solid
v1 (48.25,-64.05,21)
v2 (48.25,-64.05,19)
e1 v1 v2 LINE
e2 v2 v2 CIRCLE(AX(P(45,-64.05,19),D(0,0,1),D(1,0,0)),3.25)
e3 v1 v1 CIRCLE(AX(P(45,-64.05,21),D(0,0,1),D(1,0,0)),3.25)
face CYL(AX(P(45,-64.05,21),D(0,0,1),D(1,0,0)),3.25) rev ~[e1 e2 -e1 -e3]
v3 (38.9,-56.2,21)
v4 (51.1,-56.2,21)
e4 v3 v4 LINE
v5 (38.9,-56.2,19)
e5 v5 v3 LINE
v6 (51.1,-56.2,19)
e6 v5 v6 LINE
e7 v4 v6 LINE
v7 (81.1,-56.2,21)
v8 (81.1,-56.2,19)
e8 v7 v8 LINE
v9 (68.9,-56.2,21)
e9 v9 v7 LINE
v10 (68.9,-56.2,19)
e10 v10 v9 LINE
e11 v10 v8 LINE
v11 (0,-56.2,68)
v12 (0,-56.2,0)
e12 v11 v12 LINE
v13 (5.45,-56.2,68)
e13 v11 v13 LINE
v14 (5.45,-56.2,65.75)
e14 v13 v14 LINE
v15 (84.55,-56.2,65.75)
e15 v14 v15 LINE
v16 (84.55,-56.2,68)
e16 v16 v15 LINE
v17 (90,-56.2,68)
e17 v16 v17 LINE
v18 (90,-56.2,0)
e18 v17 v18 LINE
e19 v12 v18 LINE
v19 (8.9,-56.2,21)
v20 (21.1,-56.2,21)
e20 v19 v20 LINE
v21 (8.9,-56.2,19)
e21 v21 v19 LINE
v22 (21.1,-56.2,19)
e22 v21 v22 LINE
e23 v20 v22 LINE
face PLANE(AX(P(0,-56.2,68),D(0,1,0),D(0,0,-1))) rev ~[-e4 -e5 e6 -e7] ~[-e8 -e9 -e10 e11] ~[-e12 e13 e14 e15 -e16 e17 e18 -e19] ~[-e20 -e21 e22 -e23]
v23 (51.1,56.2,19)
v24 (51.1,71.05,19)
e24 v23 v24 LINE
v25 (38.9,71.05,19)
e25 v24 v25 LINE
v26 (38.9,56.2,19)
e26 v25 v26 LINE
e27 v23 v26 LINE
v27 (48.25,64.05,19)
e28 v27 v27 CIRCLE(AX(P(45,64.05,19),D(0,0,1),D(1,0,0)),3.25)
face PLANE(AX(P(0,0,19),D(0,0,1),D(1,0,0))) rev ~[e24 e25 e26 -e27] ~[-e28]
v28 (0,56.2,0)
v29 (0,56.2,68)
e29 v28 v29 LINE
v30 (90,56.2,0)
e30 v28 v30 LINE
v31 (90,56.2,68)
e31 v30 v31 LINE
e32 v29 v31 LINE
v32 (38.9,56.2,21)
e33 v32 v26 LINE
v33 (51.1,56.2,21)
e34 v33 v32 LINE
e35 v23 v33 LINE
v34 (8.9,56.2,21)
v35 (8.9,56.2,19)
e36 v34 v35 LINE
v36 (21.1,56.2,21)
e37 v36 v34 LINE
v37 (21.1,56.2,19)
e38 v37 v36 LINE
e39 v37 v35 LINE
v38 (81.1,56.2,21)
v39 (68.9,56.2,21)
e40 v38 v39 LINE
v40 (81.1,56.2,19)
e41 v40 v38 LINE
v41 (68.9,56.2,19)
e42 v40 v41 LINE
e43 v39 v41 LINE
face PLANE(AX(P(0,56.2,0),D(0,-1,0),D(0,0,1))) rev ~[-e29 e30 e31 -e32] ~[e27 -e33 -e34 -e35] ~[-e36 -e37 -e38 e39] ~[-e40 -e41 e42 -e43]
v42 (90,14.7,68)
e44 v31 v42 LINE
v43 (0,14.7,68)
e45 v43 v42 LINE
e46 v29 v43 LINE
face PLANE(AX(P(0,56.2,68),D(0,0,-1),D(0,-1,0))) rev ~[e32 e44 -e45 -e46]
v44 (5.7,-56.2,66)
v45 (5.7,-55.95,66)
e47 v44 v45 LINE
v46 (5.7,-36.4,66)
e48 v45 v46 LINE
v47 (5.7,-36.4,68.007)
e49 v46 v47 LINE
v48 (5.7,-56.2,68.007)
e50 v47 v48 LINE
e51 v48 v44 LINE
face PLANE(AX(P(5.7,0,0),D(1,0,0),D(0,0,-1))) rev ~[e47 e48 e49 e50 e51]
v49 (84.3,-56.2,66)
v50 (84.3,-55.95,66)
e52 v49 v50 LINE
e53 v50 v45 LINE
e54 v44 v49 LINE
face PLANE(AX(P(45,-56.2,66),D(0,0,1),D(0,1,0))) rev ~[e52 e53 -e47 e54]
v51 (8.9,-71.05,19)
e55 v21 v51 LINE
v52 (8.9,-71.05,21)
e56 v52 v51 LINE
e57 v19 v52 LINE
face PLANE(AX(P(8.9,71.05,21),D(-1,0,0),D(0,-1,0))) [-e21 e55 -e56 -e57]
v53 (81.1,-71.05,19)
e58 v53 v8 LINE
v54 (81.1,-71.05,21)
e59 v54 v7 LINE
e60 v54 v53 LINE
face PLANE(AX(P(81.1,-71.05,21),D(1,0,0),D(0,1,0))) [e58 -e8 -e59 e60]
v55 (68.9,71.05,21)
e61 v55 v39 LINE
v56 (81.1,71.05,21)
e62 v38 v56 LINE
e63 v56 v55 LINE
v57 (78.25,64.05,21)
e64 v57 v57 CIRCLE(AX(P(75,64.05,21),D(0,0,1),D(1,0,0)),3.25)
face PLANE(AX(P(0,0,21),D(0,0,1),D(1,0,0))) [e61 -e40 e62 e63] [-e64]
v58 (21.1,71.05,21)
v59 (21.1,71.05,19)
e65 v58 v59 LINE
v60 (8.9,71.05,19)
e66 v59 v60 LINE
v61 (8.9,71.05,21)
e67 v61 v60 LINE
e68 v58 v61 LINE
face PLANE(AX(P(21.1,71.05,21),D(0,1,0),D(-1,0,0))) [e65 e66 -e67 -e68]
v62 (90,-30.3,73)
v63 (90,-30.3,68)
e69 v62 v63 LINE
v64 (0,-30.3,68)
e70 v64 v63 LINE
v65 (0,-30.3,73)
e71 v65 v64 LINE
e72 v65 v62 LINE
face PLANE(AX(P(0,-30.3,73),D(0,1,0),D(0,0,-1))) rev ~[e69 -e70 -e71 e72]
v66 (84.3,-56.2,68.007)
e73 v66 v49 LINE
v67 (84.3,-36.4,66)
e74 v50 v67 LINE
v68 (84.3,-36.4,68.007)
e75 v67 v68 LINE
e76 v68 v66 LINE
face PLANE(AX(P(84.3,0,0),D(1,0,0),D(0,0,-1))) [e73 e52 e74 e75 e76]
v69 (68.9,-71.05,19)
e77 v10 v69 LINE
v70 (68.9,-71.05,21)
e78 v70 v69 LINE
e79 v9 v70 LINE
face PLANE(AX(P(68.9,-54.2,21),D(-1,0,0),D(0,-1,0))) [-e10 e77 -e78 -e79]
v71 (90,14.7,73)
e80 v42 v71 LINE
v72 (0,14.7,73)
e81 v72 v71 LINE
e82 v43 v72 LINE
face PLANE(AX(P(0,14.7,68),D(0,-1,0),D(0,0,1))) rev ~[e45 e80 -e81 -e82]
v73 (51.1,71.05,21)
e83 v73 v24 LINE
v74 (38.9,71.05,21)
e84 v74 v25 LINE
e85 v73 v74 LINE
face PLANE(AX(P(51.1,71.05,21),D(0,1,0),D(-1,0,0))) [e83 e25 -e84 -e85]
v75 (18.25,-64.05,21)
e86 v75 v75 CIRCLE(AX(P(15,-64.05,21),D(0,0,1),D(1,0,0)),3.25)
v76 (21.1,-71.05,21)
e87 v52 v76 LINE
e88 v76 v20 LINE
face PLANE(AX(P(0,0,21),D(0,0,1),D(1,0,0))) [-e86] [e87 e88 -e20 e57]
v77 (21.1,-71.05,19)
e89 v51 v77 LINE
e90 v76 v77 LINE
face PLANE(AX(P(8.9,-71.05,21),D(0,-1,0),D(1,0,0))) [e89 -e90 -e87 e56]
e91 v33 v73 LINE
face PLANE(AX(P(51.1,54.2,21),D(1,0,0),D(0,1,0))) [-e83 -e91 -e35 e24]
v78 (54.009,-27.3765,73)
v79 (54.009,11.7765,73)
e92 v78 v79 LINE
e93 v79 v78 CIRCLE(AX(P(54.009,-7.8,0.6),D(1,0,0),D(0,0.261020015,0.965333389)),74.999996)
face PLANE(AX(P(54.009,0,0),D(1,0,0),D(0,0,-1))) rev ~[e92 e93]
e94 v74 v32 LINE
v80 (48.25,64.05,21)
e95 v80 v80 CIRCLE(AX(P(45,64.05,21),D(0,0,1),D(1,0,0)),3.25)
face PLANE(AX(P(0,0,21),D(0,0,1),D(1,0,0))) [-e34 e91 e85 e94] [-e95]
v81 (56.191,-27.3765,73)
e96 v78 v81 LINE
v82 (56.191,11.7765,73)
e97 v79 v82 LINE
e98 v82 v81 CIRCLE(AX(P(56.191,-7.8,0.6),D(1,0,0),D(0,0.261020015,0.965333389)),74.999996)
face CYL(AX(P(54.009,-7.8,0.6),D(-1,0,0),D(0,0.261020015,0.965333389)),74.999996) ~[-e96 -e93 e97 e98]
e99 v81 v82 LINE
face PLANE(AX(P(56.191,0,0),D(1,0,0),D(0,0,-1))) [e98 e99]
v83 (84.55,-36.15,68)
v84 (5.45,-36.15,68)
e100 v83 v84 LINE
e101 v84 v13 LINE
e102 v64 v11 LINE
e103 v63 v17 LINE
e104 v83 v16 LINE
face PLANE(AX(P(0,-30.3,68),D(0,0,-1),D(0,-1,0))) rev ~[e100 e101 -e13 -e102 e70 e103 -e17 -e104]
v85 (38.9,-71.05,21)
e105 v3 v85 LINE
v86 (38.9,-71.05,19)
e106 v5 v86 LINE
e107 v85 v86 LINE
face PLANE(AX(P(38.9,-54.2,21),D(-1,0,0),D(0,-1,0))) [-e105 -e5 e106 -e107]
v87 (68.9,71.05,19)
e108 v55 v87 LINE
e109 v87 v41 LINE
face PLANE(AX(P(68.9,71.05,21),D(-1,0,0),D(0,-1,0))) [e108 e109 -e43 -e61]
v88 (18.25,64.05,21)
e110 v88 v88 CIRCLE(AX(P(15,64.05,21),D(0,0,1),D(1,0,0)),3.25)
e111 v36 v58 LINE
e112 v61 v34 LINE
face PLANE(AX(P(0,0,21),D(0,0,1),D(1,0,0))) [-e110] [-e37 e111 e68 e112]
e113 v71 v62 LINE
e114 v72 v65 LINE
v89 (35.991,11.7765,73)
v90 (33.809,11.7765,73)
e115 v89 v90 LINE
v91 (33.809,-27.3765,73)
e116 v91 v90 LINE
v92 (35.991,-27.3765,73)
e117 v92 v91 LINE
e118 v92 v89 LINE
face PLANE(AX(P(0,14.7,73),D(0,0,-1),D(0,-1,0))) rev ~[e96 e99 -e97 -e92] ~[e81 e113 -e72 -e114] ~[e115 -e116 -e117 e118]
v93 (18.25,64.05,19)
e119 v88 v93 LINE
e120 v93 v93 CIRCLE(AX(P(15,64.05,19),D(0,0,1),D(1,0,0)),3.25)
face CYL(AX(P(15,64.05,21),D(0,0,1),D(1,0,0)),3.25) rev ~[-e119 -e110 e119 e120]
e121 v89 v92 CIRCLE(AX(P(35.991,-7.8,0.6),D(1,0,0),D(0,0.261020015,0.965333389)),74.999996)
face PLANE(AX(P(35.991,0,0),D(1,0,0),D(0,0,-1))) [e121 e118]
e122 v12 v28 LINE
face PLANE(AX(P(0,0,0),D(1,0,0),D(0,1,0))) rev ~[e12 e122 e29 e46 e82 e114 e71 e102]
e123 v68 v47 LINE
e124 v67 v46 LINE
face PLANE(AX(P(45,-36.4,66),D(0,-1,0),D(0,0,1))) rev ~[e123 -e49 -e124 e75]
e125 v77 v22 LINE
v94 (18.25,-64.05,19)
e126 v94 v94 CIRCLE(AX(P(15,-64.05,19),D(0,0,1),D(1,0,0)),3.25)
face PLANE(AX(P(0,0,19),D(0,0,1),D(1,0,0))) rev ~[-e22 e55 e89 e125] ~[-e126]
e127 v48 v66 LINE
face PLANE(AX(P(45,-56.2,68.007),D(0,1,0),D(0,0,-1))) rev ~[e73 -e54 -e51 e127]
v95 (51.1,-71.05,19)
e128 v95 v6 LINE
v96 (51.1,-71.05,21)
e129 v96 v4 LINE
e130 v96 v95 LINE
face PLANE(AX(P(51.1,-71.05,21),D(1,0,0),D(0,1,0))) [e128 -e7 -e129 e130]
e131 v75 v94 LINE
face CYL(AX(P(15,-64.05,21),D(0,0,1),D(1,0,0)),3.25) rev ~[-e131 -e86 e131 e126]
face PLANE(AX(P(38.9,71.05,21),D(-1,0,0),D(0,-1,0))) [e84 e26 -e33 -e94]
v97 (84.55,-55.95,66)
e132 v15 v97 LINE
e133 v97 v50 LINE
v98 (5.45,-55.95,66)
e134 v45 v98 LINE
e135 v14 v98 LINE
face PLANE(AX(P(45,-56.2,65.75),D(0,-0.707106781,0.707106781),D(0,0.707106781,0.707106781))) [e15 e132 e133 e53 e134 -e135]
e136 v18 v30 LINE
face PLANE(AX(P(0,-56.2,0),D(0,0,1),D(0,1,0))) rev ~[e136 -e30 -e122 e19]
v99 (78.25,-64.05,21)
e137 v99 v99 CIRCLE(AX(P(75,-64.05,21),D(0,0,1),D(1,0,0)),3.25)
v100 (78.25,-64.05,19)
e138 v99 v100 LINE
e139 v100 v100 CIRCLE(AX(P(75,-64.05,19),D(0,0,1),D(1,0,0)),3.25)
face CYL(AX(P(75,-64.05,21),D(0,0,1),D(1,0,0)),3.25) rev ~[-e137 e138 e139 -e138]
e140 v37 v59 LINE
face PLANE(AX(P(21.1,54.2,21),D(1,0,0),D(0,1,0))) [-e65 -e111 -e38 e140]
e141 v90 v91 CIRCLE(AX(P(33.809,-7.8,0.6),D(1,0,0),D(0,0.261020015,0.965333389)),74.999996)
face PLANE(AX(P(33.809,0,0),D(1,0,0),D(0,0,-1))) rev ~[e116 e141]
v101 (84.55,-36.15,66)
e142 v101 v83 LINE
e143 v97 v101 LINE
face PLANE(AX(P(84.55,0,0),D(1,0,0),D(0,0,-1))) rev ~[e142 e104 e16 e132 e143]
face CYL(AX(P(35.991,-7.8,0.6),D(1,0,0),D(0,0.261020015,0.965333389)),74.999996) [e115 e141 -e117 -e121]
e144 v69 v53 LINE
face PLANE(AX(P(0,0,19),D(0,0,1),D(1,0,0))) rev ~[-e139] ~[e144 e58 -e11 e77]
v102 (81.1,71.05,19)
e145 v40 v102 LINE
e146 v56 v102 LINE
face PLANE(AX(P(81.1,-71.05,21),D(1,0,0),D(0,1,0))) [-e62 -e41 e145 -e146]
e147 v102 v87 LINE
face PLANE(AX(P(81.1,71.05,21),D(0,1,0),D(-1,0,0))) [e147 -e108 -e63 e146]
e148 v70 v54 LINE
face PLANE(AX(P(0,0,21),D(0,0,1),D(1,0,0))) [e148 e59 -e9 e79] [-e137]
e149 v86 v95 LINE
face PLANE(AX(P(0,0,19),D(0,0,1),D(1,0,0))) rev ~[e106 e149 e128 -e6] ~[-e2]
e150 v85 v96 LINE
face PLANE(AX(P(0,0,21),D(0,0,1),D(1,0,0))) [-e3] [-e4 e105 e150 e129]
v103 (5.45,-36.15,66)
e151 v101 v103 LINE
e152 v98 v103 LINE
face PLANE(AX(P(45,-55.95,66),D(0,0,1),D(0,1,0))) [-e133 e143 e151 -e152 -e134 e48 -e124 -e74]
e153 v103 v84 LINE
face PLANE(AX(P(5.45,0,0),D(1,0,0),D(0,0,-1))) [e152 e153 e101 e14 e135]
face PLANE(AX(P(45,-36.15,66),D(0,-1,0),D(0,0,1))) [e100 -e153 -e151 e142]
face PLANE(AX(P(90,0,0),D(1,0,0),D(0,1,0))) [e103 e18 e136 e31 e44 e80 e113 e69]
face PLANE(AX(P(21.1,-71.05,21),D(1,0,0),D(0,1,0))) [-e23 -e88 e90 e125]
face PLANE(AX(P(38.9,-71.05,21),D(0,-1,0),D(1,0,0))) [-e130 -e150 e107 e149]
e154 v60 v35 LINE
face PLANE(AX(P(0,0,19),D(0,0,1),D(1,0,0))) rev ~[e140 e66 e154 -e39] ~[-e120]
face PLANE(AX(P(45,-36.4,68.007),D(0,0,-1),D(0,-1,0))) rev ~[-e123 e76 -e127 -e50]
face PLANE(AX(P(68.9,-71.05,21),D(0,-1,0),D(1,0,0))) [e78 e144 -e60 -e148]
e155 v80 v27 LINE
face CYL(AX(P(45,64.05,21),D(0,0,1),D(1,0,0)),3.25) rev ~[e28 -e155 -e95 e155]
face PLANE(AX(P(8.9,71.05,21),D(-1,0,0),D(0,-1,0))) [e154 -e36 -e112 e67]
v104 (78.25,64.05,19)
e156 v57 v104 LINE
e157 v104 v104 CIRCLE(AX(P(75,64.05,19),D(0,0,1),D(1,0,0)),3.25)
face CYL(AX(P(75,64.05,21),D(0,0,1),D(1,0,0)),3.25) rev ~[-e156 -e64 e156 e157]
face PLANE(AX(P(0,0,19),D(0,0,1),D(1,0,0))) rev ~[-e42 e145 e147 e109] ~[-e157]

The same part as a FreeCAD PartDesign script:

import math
import FreeCAD as App
import Part
import Sketcher
from FreeCAD import Vector
Q = App.Units.Quantity


def add_polygon(sketch, points):
    """Adds a closed chain of lines whose ends are joined by coincident constraints."""
    first, n = sketch.GeometryCount, len(points)
    for a, b in zip(points, points[1:] + points[:1]):
        sketch.addGeometry(Part.LineSegment(App.Vector(*a, 0), App.Vector(*b, 0)), False)
    for i in range(n):
        sketch.addConstraint(Sketcher.Constraint("Coincident", first + i, 2, first + (i + 1) % n, 1))

doc = App.newDocument("Part")
body = doc.addObject("PartDesign::Body", "Body")

sketch1 = body.newObject("Sketcher::SketchObject", "Sketch")
sketch1.AttachmentSupport = (doc.getObject("YZ_Plane"), [""])
sketch1.MapMode = "FlatFace"
add_polygon(sketch1, [(14.7, 73), (-30.3, 73), (-30.3, 68), (-56.2, 68), (-56.2, 0), (56.2, 0), (56.2, 68), (14.7, 68)])
sketch1.addConstraint([
    Sketcher.Constraint("Horizontal", 0),
    Sketcher.Constraint("Vertical", 1),
    Sketcher.Constraint("Horizontal", 2),
    Sketcher.Constraint("Vertical", 3),
    Sketcher.Constraint("Horizontal", 4),
    Sketcher.Constraint("Vertical", 5),
    Sketcher.Constraint("Horizontal", 6),
    Sketcher.Constraint("Vertical", 7),
    Sketcher.Constraint("Symmetric", 3, 2, 4, 2, -1, 1),
    Sketcher.Constraint("Horizontal", 2, 2, 5, 2),
    Sketcher.Constraint("DistanceX", 0, 2, 0, 1, Q("45 mm")),
    Sketcher.Constraint("DistanceY", 1, 2, 1, 1, Q("5 mm")),
    Sketcher.Constraint("DistanceY", 3, 2, 3, 1, Q("68 mm")),
    Sketcher.Constraint("DistanceX", 2, 2, 2, 1, Q("25.9 mm")),
    Sketcher.Constraint("DistanceX", 4, 1, 4, 2, Q("112.4 mm")),
])
pad1 = body.newObject("PartDesign::Pad", "Pad")
pad1.Profile = sketch1
pad1.Length = 90

sketch2 = body.newObject("Sketcher::SketchObject", "Sketch001")
sketch2.AttachmentSupport = (doc.getObject("YZ_Plane"), [""])
sketch2.MapMode = "FlatFace"
sketch2.AttachmentOffset = App.Placement(Vector(0, 0, 45), App.Rotation())
add_polygon(sketch2, [(-36.15, 69), (-56.2, 69), (-56.2, 65.75), (-55.95, 66), (-36.15, 66)])
sketch2.addConstraint([
    Sketcher.Constraint("Horizontal", 0),
    Sketcher.Constraint("Vertical", 1),
    Sketcher.Constraint("Horizontal", 3),
    Sketcher.Constraint("Vertical", 4),
    Sketcher.Constraint("DistanceY", 4, 1, 4, 2, Q("3 mm")),
    Sketcher.Constraint("Angle", 2, Q("45 deg")),
    Sketcher.Constraint("DistanceX", 3, 1, 3, 2, Q("19.8 mm")),
    Sketcher.Constraint("DistanceY", -1, 1, 0, 2, Q("69 mm")),
    Sketcher.Constraint("DistanceX", 0, 2, 0, 1, Q("20.05 mm")),
    Sketcher.Constraint("DistanceX", 0, 2, -1, 1, Q("56.2 mm")),
])
pocket1 = body.newObject("PartDesign::Pocket", "Pocket")
pocket1.Profile = sketch2
pocket1.Length = 79.1
pocket1.Midplane = True

sketch3 = body.newObject("Sketcher::SketchObject", "Sketch002")
sketch3.AttachmentSupport = (doc.getObject("YZ_Plane"), [""])
sketch3.MapMode = "FlatFace"
sketch3.AttachmentOffset = App.Placement(Vector(0, 0, 45), App.Rotation())
add_polygon(sketch3, [(-36.4, 68.007), (-56.2, 68.007), (-56.2, 66), (-36.4, 66)])
sketch3.addConstraint([
    Sketcher.Constraint("Horizontal", 0),
    Sketcher.Constraint("Vertical", 1),
    Sketcher.Constraint("Horizontal", 2),
    Sketcher.Constraint("Vertical", 3),
    Sketcher.Constraint("DistanceX", 0, 2, 0, 1, Q("19.8 mm")),
    Sketcher.Constraint("DistanceY", -1, 1, 1, 2, Q("66 mm")),
    Sketcher.Constraint("DistanceX", 0, 2, -1, 1, Q("56.2 mm")),
    Sketcher.Constraint("DistanceY", 1, 2, 1, 1, Q("2.007 mm")),
])
pad2 = body.newObject("PartDesign::Pad", "Pad001")
pad2.Profile = sketch3
pad2.Length = 78.6
pad2.Midplane = True

sketch4 = body.newObject("Sketcher::SketchObject", "Sketch003")
sketch4.AttachmentSupport = (doc.getObject("YZ_Plane"), [""])
sketch4.MapMode = "FlatFace"
sketch4.AttachmentOffset = App.Placement(Vector(0, 0, 35.991), App.Rotation())
sketch4.addGeometry([
    Part.LineSegment(Vector(-27.3765, 73, 0), Vector(11.7765, 73, 0)),
    Part.ArcOfCircle(Part.Circle(Vector(-7.8, 0.6, 0), Vector(0, 0, 1), 74.999996), math.radians(74.869405), math.radians(105.130595)),
], False)
sketch4.addConstraint([
    Sketcher.Constraint("Coincident", 0, 1, 1, 2),
    Sketcher.Constraint("Coincident", 1, 1, 0, 2),
    Sketcher.Constraint("Horizontal", 0),
    Sketcher.Constraint("Radius", 1, Q("75 mm")),
    Sketcher.Constraint("DistanceY", -1, 1, 0, 1, Q("73 mm")),
    Sketcher.Constraint("DistanceX", 1, 3, -1, 1, Q("7.8 mm")),
    Sketcher.Constraint("DistanceY", -1, 1, 1, 3, Q("0.6 mm")),
])
pad3 = body.newObject("PartDesign::Pad", "Pad002")
pad3.Profile = sketch4
pad3.Length = 2.182
pad3.Reversed = True

sketch5 = body.newObject("Sketcher::SketchObject", "Sketch004")
sketch5.AttachmentSupport = (doc.getObject("YZ_Plane"), [""])
sketch5.MapMode = "FlatFace"
sketch5.AttachmentOffset = App.Placement(Vector(0, 0, 54.009), App.Rotation())
sketch5.addGeometry([
    Part.LineSegment(Vector(-27.3765, 73, 0), Vector(11.7765, 73, 0)),
    Part.ArcOfCircle(Part.Circle(Vector(-7.8, 0.6, 0), Vector(0, 0, 1), 74.999996), math.radians(74.869405), math.radians(105.130595)),
], False)
sketch5.addConstraint([
    Sketcher.Constraint("Coincident", 0, 1, 1, 2),
    Sketcher.Constraint("Coincident", 1, 1, 0, 2),
    Sketcher.Constraint("Horizontal", 0),
    Sketcher.Constraint("Radius", 1, Q("75 mm")),
    Sketcher.Constraint("DistanceY", -1, 1, 0, 1, Q("73 mm")),
    Sketcher.Constraint("DistanceX", 1, 3, -1, 1, Q("7.8 mm")),
    Sketcher.Constraint("DistanceY", -1, 1, 1, 3, Q("0.6 mm")),
])
pad4 = body.newObject("PartDesign::Pad", "Pad003")
pad4.Profile = sketch5
pad4.Length = 2.182

sketch6 = body.newObject("Sketcher::SketchObject", "Sketch005")
sketch6.AttachmentSupport = (doc.getObject("XY_Plane"), [""])
sketch6.MapMode = "FlatFace"
sketch6.AttachmentOffset = App.Placement(Vector(0, 0, 21), App.Rotation())
add_polygon(sketch6, [(8.9, 71.05), (8.9, -71.05), (21.1, -71.05), (21.1, -54.2), (38.9, -54.2), (38.9, -71.05), (51.1, -71.05), (51.1, -54.2), (68.9, -54.2), (68.9, -71.05), (81.1, -71.05), (81.1, 71.05), (68.9, 71.05), (68.9, 54.2), (51.1, 54.2), (51.1, 71.05), (38.9, 71.05), (38.9, 54.2), (21.1, 54.2), (21.1, 71.05)])
sketch6.addGeometry(Part.Circle(Vector(15, -64.05, 0), Vector(0, 0, 1), 3.25), False)
sketch6.addGeometry(Part.Circle(Vector(45, -64.05, 0), Vector(0, 0, 1), 3.25), False)
sketch6.addGeometry(Part.Circle(Vector(75, -64.05, 0), Vector(0, 0, 1), 3.25), False)
sketch6.addGeometry(Part.Circle(Vector(15, 64.05, 0), Vector(0, 0, 1), 3.25), False)
sketch6.addGeometry(Part.Circle(Vector(45, 64.05, 0), Vector(0, 0, 1), 3.25), False)
sketch6.addGeometry(Part.Circle(Vector(75, 64.05, 0), Vector(0, 0, 1), 3.25), False)
sketch6.addConstraint([
    Sketcher.Constraint("Vertical", 0),
    Sketcher.Constraint("Horizontal", 1),
    Sketcher.Constraint("Vertical", 2),
    Sketcher.Constraint("Horizontal", 3),
    Sketcher.Constraint("Vertical", 4),
    Sketcher.Constraint("Horizontal", 5),
    Sketcher.Constraint("Vertical", 6),
    Sketcher.Constraint("Horizontal", 7),
    Sketcher.Constraint("Vertical", 8),
    Sketcher.Constraint("Horizontal", 9),
    Sketcher.Constraint("Vertical", 10),
    Sketcher.Constraint("Horizontal", 11),
    Sketcher.Constraint("Vertical", 12),
    Sketcher.Constraint("Horizontal", 13),
    Sketcher.Constraint("Vertical", 14),
    Sketcher.Constraint("Horizontal", 15),
    Sketcher.Constraint("Vertical", 16),
    Sketcher.Constraint("Horizontal", 17),
    Sketcher.Constraint("Vertical", 18),
    Sketcher.Constraint("Horizontal", 19),
    Sketcher.Constraint("Equal", 20, 21),
    Sketcher.Constraint("Equal", 21, 22),
    Sketcher.Constraint("Equal", 22, 23),
    Sketcher.Constraint("Equal", 23, 24),
    Sketcher.Constraint("Equal", 24, 25),
    Sketcher.Constraint("Symmetric", 20, 3, 23, 3, -1),
    Sketcher.Constraint("Symmetric", 21, 3, 24, 3, -1),
    Sketcher.Constraint("Symmetric", 22, 3, 25, 3, -1),
    Sketcher.Constraint("Symmetric", 8, 2, 11, 2, -1),
    Sketcher.Constraint("Symmetric", 6, 2, 13, 2, -1),
    Sketcher.Constraint("Symmetric", 4, 2, 15, 2, -1),
    Sketcher.Constraint("Symmetric", 2, 2, 17, 2, -1),
    Sketcher.Constraint("Horizontal", 20, 3, 21, 3),
    Sketcher.Constraint("Horizontal", 21, 3, 22, 3),
    Sketcher.Constraint("Horizontal", 1, 2, 4, 2),
    Sketcher.Constraint("Horizontal", 3, 2, 6, 2),
    Sketcher.Constraint("Horizontal", 5, 2, 8, 2),
    Sketcher.Constraint("Horizontal", 15, 2, 18, 2),
    Sketcher.Constraint("Equal", 1, 5),
    Sketcher.Constraint("Equal", 3, 7),
    Sketcher.Constraint("Equal", 5, 9),
    Sketcher.Constraint("Diameter", 20, Q("6.5 mm")),
    Sketcher.Constraint("DistanceX", 1, 1, 1, 2, Q("12.2 mm")),
    Sketcher.Constraint("DistanceX", 3, 1, 3, 2, Q("17.8 mm")),
    Sketcher.Constraint("DistanceY", 0, 2, 0, 1, Q("142.1 mm")),
    Sketcher.Constraint("DistanceX", -1, 1, 20, 3, Q("15 mm")),
    Sketcher.Constraint("DistanceX", -1, 1, 21, 3, Q("45 mm")),
    Sketcher.Constraint("DistanceX", -1, 1, 22, 3, Q("75 mm")),
    Sketcher.Constraint("DistanceY", 0, 2, 20, 3, Q("7 mm")),
    Sketcher.Constraint("DistanceY", 2, 1, 2, 2, Q("16.85 mm")),
    Sketcher.Constraint("DistanceX", -1, 1, 0, 2, Q("8.9 mm")),
])
pad5 = body.newObject("PartDesign::Pad", "Pad004")
pad5.Profile = sketch6
pad5.Length = 2
pad5.Reversed = True

doc.recompute()
